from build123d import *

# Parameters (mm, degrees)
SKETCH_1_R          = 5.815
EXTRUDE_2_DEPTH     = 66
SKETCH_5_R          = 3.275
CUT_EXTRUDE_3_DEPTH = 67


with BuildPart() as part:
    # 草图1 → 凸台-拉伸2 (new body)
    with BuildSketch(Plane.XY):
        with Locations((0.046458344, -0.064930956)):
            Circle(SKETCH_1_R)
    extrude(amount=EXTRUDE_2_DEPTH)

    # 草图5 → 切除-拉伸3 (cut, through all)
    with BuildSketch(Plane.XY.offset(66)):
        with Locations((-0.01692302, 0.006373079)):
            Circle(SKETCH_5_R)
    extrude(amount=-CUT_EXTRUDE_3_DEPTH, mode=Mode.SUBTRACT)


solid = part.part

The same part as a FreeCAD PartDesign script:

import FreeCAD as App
import Part
import Sketcher

doc = App.newDocument("Part")
params = doc.addObject("Spreadsheet::Sheet", "Params")
for row, (alias, value) in enumerate([
    ("sketch1_diameter", "11.63 mm"),
    ("pad1_length", "66 mm"),
    ("sketch2_diameter", "6.55 mm"),
], start=1):
    params.set(f"A{row}", alias)
    params.set(f"B{row}", "=" + value)
    params.setAlias(f"B{row}", alias)

body = doc.addObject("PartDesign::Body", "Body")

sketch1 = body.newObject("Sketcher::SketchObject", "Sketch")
sketch1.AttachmentSupport = (doc.getObject("XY_Plane"), [""])
sketch1.MapMode = "FlatFace"
sketch1.addGeometry(Part.Circle(App.Vector(0.046458, -0.064931, 0), App.Vector(0, 0, 1), 5.815), False)
sketch1.addConstraint([
    Sketcher.Constraint("Diameter", 0, 11.63),
    Sketcher.Constraint("DistanceX", -1, 1, 0, 3, 0.046458),
    Sketcher.Constraint("DistanceY", 0, 3, -1, 1, 0.064931),
])
sketch1.setExpression("Constraints[0]", "Params.sketch1_diameter")
pad1 = body.newObject("PartDesign::Pad", "Pad")
pad1.Profile = sketch1
pad1.setExpression("Length", "Params.pad1_length")

sketch2 = body.newObject("Sketcher::SketchObject", "Sketch001")
sketch2.AttachmentSupport = (doc.getObject("XY_Plane"), [""])
sketch2.MapMode = "FlatFace"
sketch2.AttachmentOffset = App.Placement(App.Vector(0, 0, 66), App.Rotation())
sketch2.addGeometry(Part.Circle(App.Vector(-0.016923, 0.006373, 0), App.Vector(0, 0, 1), 3.275), False)
sketch2.addConstraint([
    Sketcher.Constraint("Diameter", 0, 6.55),
    Sketcher.Constraint("DistanceX", 0, 3, -1, 1, 0.016923),
    Sketcher.Constraint("DistanceY", -1, 1, 0, 3, 0.006373),
])
sketch2.setExpression("Constraints[0]", "Params.sketch2_diameter")
pocket1 = body.newObject("PartDesign::Pocket", "Pocket")
pocket1.Profile = sketch2
pocket1.Type = "ThroughAll"

doc.recompute()
